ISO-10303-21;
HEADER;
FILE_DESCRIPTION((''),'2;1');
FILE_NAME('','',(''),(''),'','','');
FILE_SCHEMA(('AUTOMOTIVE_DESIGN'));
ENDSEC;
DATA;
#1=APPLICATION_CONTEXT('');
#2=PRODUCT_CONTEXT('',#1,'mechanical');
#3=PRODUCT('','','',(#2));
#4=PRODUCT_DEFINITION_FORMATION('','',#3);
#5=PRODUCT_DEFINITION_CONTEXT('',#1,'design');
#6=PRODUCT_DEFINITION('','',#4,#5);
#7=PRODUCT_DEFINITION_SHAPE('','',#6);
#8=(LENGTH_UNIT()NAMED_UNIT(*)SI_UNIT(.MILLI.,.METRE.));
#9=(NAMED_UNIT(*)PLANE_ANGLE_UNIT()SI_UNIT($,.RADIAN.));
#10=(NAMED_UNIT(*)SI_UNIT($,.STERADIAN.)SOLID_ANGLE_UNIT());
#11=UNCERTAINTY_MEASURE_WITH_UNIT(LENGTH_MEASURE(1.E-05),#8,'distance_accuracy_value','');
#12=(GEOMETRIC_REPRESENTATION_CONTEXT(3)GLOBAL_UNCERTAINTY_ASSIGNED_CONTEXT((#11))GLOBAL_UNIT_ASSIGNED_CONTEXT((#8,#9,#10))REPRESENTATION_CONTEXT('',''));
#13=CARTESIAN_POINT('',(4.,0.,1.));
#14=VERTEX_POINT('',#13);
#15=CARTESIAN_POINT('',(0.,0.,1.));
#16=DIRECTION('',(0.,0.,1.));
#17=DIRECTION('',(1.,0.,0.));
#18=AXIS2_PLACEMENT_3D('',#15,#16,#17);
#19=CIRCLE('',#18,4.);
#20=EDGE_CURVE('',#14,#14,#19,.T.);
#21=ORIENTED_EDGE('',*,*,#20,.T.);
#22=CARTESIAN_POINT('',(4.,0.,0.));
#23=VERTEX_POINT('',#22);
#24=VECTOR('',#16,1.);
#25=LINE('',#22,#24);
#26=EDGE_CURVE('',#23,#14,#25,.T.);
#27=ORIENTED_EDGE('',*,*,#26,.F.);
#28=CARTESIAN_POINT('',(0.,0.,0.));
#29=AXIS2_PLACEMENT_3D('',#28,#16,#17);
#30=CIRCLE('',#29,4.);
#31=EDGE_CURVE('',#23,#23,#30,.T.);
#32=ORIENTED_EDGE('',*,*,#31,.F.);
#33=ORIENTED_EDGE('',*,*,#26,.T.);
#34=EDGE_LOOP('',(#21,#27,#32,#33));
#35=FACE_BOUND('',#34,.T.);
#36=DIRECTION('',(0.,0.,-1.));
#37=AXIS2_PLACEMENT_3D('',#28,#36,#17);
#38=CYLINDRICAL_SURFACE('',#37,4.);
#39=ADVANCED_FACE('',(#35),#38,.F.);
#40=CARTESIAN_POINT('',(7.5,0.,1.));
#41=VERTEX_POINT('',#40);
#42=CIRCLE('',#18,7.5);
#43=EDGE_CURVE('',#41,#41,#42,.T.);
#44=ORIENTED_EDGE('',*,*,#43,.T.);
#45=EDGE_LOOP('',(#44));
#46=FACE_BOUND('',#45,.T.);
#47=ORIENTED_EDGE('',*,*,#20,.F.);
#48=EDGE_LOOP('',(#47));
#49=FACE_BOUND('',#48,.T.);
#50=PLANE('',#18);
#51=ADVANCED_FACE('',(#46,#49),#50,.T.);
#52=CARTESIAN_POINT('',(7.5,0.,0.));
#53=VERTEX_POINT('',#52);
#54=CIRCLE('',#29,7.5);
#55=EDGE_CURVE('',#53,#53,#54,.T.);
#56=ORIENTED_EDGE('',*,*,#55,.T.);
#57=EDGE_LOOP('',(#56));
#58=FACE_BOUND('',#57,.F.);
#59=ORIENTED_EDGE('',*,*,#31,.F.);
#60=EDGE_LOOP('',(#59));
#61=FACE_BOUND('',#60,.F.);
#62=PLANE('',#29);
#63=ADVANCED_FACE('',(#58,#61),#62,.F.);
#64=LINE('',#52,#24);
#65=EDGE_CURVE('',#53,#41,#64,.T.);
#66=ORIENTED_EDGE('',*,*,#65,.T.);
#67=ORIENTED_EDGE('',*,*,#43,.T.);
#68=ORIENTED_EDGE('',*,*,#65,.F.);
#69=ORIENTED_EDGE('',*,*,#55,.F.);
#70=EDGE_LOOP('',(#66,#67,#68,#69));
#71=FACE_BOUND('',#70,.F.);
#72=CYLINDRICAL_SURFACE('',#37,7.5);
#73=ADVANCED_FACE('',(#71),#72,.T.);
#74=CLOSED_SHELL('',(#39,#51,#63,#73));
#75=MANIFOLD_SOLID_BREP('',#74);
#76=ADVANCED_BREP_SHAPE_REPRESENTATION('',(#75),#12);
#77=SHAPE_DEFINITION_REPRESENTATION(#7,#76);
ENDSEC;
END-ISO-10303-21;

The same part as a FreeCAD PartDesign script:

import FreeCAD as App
import Part
import Sketcher

doc = App.newDocument("Part")
params = doc.addObject("Spreadsheet::Sheet", "Params")
for row, (alias, value) in enumerate([
    ("sketch1_diameter", "15 mm"),
    ("sketch1_diameter2", "8 mm"),
    ("pad1_length", "1 mm"),
], start=1):
    params.set(f"A{row}", alias)
    params.set(f"B{row}", "=" + value)
    params.setAlias(f"B{row}", alias)

body = doc.addObject("PartDesign::Body", "Body")

sketch1 = body.newObject("Sketcher::SketchObject", "Sketch")
sketch1.AttachmentSupport = (doc.getObject("XY_Plane"), [""])
sketch1.MapMode = "FlatFace"
sketch1.addGeometry([
    Part.Circle(App.Vector(0, 0, 0), App.Vector(0, 0, 1), 7.5),
    Part.Circle(App.Vector(0, 0, 0), App.Vector(0, 0, 1), 4),
], False)
sketch1.addConstraint([
    Sketcher.Constraint("Coincident", 0, 3, -1, 1),
    Sketcher.Constraint("Coincident", 1, 3, -1, 1),
    Sketcher.Constraint("Diameter", 0, 15.0),
    Sketcher.Constraint("Diameter", 1, 8.0),
])
sketch1.setExpression("Constraints[2]", "Params.sketch1_diameter")
sketch1.setExpression("Constraints[3]", "Params.sketch1_diameter2")
pad1 = body.newObject("PartDesign::Pad", "Pad")
pad1.Profile = sketch1
pad1.setExpression("Length", "Params.pad1_length")

doc.recompute()
